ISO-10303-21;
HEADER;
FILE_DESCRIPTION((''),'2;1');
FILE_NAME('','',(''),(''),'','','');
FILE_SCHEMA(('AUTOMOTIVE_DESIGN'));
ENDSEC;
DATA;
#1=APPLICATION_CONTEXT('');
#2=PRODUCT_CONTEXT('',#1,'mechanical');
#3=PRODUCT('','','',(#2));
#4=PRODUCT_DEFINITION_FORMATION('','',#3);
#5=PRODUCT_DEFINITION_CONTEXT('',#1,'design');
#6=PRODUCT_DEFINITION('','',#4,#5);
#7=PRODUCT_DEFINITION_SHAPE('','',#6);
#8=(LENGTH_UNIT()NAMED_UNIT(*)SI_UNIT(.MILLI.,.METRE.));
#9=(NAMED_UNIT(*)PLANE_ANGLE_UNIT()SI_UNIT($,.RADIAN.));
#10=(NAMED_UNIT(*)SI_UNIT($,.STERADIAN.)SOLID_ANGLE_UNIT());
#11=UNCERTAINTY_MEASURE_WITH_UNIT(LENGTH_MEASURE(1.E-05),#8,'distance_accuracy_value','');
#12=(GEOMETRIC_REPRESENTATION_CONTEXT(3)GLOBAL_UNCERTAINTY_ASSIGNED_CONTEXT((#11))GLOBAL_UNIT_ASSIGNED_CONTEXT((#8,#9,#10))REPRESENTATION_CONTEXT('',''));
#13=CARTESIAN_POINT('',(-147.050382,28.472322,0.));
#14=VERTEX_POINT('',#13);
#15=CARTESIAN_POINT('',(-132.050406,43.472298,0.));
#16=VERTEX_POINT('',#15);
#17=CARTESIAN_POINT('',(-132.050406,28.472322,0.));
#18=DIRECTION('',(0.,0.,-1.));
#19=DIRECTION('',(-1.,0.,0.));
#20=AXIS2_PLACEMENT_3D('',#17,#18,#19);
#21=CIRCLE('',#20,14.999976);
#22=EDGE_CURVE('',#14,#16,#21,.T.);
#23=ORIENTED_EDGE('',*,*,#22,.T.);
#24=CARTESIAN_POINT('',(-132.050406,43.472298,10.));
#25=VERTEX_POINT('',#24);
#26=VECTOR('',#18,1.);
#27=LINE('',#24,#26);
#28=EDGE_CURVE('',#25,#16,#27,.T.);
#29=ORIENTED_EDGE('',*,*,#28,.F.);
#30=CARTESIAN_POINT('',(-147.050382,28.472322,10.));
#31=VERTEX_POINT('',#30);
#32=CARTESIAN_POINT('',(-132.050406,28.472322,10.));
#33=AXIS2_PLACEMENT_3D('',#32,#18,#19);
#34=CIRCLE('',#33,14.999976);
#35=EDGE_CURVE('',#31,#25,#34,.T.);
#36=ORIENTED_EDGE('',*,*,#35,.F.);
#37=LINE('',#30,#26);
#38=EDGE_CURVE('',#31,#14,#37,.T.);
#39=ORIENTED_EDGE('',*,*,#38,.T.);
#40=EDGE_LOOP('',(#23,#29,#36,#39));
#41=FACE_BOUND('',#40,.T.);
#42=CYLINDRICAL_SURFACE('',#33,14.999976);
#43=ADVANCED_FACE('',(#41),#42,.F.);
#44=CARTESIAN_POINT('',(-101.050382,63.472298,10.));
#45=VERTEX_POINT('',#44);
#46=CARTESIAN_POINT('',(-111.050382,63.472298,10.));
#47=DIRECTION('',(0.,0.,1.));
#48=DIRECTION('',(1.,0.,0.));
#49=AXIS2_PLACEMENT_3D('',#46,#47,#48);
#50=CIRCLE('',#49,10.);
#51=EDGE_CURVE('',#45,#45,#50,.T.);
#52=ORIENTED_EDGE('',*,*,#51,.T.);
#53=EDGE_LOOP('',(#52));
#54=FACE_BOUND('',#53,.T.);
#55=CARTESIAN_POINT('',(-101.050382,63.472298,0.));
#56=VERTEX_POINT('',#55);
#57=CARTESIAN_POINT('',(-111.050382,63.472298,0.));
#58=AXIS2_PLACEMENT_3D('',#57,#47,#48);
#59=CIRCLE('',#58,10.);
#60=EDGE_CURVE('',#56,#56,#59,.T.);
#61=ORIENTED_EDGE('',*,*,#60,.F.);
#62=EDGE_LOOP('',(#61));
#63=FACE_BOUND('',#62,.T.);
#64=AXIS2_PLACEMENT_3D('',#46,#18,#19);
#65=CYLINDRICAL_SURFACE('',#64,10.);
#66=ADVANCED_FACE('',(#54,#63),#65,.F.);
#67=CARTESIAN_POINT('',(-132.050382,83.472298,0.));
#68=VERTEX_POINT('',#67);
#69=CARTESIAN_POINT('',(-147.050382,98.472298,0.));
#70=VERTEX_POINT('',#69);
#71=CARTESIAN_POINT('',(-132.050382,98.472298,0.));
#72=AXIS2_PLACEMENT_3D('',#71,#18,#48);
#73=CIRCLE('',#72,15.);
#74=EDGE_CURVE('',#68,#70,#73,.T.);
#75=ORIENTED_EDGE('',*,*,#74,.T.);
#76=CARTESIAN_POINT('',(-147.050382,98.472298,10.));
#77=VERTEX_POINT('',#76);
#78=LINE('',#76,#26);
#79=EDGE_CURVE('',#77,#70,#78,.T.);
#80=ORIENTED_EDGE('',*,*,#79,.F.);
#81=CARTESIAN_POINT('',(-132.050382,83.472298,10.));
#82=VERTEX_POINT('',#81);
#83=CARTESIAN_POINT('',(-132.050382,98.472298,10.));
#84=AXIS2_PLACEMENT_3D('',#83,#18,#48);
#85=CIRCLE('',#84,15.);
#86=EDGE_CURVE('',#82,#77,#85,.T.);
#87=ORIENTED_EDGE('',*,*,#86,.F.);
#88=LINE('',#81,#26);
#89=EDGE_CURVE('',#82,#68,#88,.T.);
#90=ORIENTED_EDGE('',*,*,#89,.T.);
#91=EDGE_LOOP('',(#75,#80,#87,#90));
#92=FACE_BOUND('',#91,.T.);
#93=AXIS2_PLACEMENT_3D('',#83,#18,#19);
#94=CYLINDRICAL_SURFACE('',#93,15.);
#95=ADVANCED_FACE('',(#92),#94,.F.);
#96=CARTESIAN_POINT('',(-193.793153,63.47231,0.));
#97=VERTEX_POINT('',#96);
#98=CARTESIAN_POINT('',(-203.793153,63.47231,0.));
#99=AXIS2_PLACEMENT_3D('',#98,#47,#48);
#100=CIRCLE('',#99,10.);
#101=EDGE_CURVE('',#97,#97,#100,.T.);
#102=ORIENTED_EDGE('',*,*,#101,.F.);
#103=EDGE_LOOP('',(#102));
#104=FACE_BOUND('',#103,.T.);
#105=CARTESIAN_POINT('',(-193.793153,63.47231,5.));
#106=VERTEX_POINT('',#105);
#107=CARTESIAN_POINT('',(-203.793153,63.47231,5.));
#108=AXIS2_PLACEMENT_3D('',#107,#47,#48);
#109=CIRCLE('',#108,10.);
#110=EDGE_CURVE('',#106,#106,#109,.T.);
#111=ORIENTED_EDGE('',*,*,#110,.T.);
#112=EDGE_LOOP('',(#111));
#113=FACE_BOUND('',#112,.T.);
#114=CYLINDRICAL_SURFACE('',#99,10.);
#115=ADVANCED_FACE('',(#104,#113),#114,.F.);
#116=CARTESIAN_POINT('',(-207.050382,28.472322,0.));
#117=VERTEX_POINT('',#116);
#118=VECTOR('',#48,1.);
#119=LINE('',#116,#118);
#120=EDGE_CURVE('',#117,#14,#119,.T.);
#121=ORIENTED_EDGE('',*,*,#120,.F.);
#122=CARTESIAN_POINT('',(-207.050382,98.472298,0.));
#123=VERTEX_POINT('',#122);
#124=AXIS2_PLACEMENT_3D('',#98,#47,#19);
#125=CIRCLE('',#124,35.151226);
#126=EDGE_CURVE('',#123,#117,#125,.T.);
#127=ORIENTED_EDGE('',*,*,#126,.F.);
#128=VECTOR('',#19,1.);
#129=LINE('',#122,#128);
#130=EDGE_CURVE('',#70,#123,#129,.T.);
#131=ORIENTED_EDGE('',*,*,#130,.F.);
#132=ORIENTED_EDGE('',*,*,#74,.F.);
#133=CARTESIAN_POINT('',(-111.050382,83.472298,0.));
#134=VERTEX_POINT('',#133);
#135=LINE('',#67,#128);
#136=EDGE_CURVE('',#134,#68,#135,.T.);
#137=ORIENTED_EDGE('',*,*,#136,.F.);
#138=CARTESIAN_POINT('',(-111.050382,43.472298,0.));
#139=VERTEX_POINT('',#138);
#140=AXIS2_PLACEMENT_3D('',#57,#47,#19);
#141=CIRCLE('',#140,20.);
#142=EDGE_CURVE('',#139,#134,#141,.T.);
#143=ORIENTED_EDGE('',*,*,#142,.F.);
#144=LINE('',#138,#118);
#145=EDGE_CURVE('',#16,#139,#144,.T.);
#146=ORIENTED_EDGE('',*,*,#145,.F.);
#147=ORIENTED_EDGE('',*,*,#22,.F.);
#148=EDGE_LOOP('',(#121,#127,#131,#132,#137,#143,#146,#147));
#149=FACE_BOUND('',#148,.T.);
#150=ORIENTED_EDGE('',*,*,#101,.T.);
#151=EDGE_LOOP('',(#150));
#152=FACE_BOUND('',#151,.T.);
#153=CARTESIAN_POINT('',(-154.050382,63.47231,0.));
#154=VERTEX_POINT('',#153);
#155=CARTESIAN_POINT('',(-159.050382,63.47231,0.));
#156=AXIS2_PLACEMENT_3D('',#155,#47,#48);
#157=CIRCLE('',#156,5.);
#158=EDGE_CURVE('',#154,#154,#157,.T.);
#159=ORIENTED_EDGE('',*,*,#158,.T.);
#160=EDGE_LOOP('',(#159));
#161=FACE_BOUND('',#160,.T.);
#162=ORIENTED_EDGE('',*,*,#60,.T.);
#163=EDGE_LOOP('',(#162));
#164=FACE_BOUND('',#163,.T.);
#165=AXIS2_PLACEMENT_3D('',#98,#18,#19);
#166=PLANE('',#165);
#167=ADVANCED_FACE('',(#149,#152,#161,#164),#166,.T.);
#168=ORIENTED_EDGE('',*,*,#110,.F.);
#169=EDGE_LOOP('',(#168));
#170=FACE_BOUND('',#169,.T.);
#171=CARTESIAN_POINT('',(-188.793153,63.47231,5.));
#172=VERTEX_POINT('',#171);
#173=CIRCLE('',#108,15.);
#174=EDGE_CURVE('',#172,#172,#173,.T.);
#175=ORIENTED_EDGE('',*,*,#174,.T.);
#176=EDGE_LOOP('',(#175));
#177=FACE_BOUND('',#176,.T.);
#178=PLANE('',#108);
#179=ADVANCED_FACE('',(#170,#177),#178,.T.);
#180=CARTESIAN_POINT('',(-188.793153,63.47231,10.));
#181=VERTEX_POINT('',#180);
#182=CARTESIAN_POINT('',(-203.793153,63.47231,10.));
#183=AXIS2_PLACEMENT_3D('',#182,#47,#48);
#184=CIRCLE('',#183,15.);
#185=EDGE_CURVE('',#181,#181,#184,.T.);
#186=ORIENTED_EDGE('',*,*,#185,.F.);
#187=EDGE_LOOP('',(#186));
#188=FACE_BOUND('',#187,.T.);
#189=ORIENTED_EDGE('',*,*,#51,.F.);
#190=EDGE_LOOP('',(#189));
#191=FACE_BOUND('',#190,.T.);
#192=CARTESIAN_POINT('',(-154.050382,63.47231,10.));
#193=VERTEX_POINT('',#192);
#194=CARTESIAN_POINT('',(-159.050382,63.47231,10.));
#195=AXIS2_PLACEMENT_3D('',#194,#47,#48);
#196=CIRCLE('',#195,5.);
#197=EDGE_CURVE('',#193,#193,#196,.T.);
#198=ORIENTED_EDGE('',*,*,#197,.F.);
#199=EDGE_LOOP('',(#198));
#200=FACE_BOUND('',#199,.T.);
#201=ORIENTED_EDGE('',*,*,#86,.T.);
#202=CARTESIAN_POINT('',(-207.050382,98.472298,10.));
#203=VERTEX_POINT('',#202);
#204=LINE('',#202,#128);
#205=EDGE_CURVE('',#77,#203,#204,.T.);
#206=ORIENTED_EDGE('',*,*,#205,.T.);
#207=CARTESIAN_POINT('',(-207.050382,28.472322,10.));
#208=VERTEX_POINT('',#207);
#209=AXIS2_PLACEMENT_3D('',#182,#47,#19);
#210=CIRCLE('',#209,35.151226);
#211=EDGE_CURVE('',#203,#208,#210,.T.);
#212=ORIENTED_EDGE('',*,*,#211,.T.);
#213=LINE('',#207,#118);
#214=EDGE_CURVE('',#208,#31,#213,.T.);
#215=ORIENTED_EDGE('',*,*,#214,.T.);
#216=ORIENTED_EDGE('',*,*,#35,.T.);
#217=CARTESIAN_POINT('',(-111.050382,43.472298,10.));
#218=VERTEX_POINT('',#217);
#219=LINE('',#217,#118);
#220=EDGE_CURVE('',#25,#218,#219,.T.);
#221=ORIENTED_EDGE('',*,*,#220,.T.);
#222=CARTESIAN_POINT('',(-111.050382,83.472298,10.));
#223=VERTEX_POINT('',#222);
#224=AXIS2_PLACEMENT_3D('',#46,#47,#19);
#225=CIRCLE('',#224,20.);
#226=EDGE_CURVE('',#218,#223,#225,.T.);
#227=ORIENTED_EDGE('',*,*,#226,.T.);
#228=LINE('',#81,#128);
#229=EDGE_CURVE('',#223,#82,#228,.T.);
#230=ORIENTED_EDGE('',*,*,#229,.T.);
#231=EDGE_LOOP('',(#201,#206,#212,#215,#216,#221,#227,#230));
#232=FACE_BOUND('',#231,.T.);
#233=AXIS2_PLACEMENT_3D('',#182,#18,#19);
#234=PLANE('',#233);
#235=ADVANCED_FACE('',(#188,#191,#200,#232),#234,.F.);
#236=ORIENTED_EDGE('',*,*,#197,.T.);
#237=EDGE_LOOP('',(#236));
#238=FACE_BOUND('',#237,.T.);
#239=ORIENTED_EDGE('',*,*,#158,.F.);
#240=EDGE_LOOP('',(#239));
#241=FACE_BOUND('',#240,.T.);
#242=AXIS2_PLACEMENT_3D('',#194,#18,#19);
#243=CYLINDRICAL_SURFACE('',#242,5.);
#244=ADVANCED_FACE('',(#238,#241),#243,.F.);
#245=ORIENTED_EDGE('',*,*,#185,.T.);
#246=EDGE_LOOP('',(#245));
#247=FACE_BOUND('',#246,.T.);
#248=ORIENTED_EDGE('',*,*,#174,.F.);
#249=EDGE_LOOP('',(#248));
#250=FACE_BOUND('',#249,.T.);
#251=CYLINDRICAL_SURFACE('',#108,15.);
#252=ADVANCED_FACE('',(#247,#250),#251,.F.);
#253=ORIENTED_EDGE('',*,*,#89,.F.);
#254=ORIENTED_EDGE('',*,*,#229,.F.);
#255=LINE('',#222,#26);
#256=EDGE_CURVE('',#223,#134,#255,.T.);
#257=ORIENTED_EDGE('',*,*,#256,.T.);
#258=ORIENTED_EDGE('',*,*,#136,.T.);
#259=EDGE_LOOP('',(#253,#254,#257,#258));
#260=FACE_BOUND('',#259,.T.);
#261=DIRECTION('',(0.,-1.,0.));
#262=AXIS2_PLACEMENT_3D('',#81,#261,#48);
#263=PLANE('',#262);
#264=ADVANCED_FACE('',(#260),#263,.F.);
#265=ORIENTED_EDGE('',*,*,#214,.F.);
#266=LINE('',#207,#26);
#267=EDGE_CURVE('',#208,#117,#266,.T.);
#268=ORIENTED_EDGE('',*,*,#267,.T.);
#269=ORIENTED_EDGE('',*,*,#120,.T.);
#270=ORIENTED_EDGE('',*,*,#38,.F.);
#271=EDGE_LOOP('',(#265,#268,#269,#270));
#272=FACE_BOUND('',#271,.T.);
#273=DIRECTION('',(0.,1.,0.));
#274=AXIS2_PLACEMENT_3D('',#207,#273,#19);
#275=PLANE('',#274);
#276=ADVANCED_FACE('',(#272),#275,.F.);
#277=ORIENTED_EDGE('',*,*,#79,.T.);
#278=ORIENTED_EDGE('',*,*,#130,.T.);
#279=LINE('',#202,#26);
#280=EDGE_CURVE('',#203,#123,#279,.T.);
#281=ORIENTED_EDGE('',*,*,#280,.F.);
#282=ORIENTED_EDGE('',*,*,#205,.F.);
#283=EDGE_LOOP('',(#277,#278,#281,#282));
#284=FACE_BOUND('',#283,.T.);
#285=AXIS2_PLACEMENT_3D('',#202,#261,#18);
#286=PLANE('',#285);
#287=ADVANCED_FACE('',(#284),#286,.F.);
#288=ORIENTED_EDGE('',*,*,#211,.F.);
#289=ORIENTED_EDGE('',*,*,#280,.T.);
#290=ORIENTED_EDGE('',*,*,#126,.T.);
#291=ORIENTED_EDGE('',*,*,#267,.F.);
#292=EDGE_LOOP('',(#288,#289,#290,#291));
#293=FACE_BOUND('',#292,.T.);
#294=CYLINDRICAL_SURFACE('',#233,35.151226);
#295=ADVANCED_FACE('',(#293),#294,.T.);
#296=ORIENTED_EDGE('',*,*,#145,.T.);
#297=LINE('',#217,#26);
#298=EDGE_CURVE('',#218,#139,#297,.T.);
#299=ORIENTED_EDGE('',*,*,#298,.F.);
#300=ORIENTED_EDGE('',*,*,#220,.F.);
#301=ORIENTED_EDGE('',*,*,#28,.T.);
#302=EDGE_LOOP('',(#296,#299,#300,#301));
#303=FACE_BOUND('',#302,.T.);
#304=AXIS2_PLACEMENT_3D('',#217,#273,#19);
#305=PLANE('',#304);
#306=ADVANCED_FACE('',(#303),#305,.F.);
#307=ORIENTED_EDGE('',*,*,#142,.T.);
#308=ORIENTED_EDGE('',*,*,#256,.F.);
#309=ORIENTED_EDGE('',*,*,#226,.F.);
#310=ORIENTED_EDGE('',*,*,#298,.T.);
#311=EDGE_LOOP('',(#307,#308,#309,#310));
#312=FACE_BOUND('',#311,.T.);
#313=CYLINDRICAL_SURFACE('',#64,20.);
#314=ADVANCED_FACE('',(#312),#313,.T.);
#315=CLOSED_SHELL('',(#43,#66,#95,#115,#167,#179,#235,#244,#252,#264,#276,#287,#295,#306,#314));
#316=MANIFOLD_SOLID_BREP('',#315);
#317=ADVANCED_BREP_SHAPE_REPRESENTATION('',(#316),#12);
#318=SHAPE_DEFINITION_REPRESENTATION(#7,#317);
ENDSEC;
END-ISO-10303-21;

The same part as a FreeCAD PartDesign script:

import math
import FreeCAD as App
import Part
import Sketcher
from FreeCAD import Vector

doc = App.newDocument("Part")
body = doc.addObject("PartDesign::Body", "Body")

# Sketch on XY plane
sketch1 = doc.addObject("Sketcher::SketchObject", "Sketch")
body.addObject(sketch1)
sketch1.AttachmentSupport = (doc.XY_Plane, [""])
sketch1.MapMode = "FlatFace"
sketch1.addGeometry([
    Part.LineSegment(Vector(-147, 98, 0), Vector(-207, 98, 0)),  # 0
    Part.ArcOfCircle(Part.Circle(Vector(-204, 63, 0), Vector(0, 0, 1), 35), math.radians(95), math.radians(265)),  # 1
    Part.LineSegment(Vector(-207, 28, 0), Vector(-147, 28, 0)),  # 2
    Part.ArcOfCircle(Part.Circle(Vector(-132, 28, 0), Vector(0, 0, 1), 15), math.radians(90), math.radians(180)),  # 3
    Part.LineSegment(Vector(-132, 43, 0), Vector(-111, 43, 0)),  # 4
    Part.ArcOfCircle(Part.Circle(Vector(-111, 63, 0), Vector(0, 0, 1), 20), math.radians(-90), math.radians(90)),  # 5
    Part.LineSegment(Vector(-111, 83, 0), Vector(-132, 83, 0)),  # 6
    Part.ArcOfCircle(Part.Circle(Vector(-132, 98, 0), Vector(0, 0, 1), 15), math.radians(180), math.radians(270)),  # 7
    Part.Circle(Vector(-111, 63, 0), Vector(0, 0, 1), 10),  # 8
    Part.Circle(Vector(-159, 63, 0), Vector(0, 0, 1), 5),  # 9
], False)
sketch1.addConstraint([
    Sketcher.Constraint("Coincident", 0, 2, 1, 1),
    Sketcher.Constraint("Coincident", 1, 2, 2, 1),
    Sketcher.Constraint("Coincident", 2, 2, 3, 2),
    Sketcher.Constraint("Tangent", 3, 1, 4, 1),
    Sketcher.Constraint("Tangent", 4, 2, 5, 1),
    Sketcher.Constraint("Tangent", 5, 2, 6, 1),
    Sketcher.Constraint("Tangent", 6, 2, 7, 2),
    Sketcher.Constraint("Coincident", 7, 1, 0, 1),
    Sketcher.Constraint("Horizontal", 0),
    Sketcher.Constraint("Horizontal", 2),
    Sketcher.Constraint("Horizontal", 4),
    Sketcher.Constraint("Horizontal", 6),
    Sketcher.Constraint("Coincident", 8, 3, 5, 3),
    Sketcher.Constraint("Horizontal", 1, 3, 9, 3),
    Sketcher.Constraint("Horizontal", 7, 3, 0, 2),
    Sketcher.Constraint("Horizontal", 3, 3, 1, 2),
    Sketcher.Constraint("Vertical", 0, 2, 1, 2),
    Sketcher.Constraint("Vertical", 2, 2, 7, 1),
    Sketcher.Constraint("Diameter", 8, 20.0),
    Sketcher.Constraint("Diameter", 9, 10.0),
    Sketcher.Constraint("Radius", 5, 20.0),
    Sketcher.Constraint("Radius", 7, 15.0),
    Sketcher.Constraint("DistanceX", 0, 2, 0, 1, 60.0),
    Sketcher.Constraint("DistanceX", 6, 2, 6, 1, 21.0),
    Sketcher.Constraint("DistanceX", 9, 3, 7, 3, 27.0),
    Sketcher.Constraint("Radius", 1, 35.151226),
    Sketcher.Constraint("Radius", 3, 14.999976),
    Sketcher.Constraint("DistanceY", -1, 1, 1, 3, 63.47231),
    Sketcher.Constraint("DistanceX", 5, 3, -1, 1, 111.050382),
])
pad1 = doc.addObject("PartDesign::Pad", "Pad")
body.addObject(pad1)
pad1.Profile = sketch1
pad1.Length = 10

# Sketch on XY plane
sketch2 = doc.addObject("Sketcher::SketchObject", "Sketch001")
body.addObject(sketch2)
sketch2.AttachmentSupport = (doc.XY_Plane, [""])
sketch2.MapMode = "FlatFace"
sketch2.AttachmentOffset = App.Placement(Vector(0, 0, 10), App.Rotation())
sketch2.addGeometry(Part.Circle(Vector(-204, 63, 0), Vector(0, 0, 1), 15), False)
sketch2.addConstraint([
    Sketcher.Constraint("Diameter", 0, 30.0),
    Sketcher.Constraint("DistanceY", -1, 1, 0, 3, 63.47231),
    Sketcher.Constraint("DistanceX", 0, 3, -1, 1, 203.793153),
])
pocket1 = doc.addObject("PartDesign::Pocket", "Pocket")
body.addObject(pocket1)
pocket1.Profile = sketch2
pocket1.Length = 5

# Sketch on XY plane
sketch3 = doc.addObject("Sketcher::SketchObject", "Sketch002")
body.addObject(sketch3)
sketch3.AttachmentSupport = (doc.XY_Plane, [""])
sketch3.MapMode = "FlatFace"
sketch3.AttachmentOffset = App.Placement(Vector(0, 0, 5), App.Rotation())
sketch3.addGeometry(Part.Circle(Vector(-204, 63, 0), Vector(0, 0, 1), 10), False)
sketch3.addConstraint([
    Sketcher.Constraint("Diameter", 0, 20.0),
    Sketcher.Constraint("DistanceY", -1, 1, 0, 3, 63.47231),
    Sketcher.Constraint("DistanceX", 0, 3, -1, 1, 203.793153),
])
pocket2 = doc.addObject("PartDesign::Pocket", "Pocket001")
body.addObject(pocket2)
pocket2.Profile = sketch3
pocket2.Type = "ThroughAll"

doc.recompute()
